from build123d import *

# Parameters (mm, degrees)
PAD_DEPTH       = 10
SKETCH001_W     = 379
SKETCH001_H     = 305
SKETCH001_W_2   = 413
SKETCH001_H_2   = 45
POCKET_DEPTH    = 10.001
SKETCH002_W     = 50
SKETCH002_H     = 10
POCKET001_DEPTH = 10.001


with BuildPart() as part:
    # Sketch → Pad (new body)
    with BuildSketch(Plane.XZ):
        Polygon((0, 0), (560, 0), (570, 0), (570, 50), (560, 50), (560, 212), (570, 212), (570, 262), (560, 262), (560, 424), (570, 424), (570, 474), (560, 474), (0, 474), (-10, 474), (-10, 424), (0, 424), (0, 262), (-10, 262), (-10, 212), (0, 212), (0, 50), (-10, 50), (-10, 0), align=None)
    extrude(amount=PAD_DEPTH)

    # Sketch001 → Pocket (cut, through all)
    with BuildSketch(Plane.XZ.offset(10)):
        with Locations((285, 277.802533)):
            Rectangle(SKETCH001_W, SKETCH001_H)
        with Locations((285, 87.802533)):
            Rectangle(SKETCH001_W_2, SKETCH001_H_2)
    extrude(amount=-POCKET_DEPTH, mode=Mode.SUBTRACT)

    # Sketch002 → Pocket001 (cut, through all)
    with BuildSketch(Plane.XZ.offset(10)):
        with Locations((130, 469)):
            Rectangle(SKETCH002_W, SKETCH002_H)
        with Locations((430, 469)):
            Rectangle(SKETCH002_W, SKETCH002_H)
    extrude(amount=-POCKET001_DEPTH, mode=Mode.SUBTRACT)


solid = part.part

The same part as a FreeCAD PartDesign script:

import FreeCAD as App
import Part
import Sketcher

V = App.Vector

doc = App.newDocument("Part")
body = doc.addObject("PartDesign::Body", "Body")

sketch1 = body.newObject("Sketcher::SketchObject", "Sketch")
sketch1.AttachmentSupport = (doc.getObject("XZ_Plane"), [""])
sketch1.MapMode = "FlatFace"
sketch1.addGeometry(Part.LineSegment(V(570, 0, 0), V(570, 50, 0)), False)
sketch1.addGeometry(Part.LineSegment(V(570, 50, 0), V(560, 50, 0)), False)
sketch1.addGeometry(Part.LineSegment(V(560, 50, 0), V(560, 212, 0)), False)
sketch1.addGeometry(Part.LineSegment(V(560, 212, 0), V(570, 212, 0)), False)
sketch1.addGeometry(Part.LineSegment(V(570, 212, 0), V(570, 262, 0)), False)
sketch1.addGeometry(Part.LineSegment(V(570, 262, 0), V(560, 262, 0)), False)
sketch1.addGeometry(Part.LineSegment(V(560, 262, 0), V(560, 424, 0)), False)
sketch1.addGeometry(Part.LineSegment(V(560, 424, 0), V(570, 424, 0)), False)
sketch1.addGeometry(Part.LineSegment(V(570, 424, 0), V(570, 474, 0)), False)
sketch1.addGeometry(Part.LineSegment(V(570, 474, 0), V(-10, 474, 0)), False)
sketch1.addGeometry(Part.LineSegment(V(-10, 474, 0), V(-10, 424, 0)), False)
sketch1.addGeometry(Part.LineSegment(V(-10, 424, 0), V(0, 424, 0)), False)
sketch1.addGeometry(Part.LineSegment(V(0, 424, 0), V(0, 262, 0)), False)
sketch1.addGeometry(Part.LineSegment(V(0, 262, 0), V(-10, 262, 0)), False)
sketch1.addGeometry(Part.LineSegment(V(-10, 262, 0), V(-10, 212, 0)), False)
sketch1.addGeometry(Part.LineSegment(V(-10, 212, 0), V(0, 212, 0)), False)
sketch1.addGeometry(Part.LineSegment(V(0, 212, 0), V(0, 50, 0)), False)
sketch1.addGeometry(Part.LineSegment(V(0, 50, 0), V(-10, 50, 0)), False)
sketch1.addGeometry(Part.LineSegment(V(-10, 50, 0), V(-10, 0, 0)), False)
sketch1.addGeometry(Part.LineSegment(V(-10, 0, 0), V(570, 0, 0)), False)
sketch1.addConstraint(Sketcher.Constraint("Coincident", 0, 2, 1, 1))
sketch1.addConstraint(Sketcher.Constraint("Coincident", 1, 2, 2, 1))
sketch1.addConstraint(Sketcher.Constraint("Coincident", 2, 2, 3, 1))
sketch1.addConstraint(Sketcher.Constraint("Coincident", 3, 2, 4, 1))
sketch1.addConstraint(Sketcher.Constraint("Coincident", 4, 2, 5, 1))
sketch1.addConstraint(Sketcher.Constraint("Coincident", 5, 2, 6, 1))
sketch1.addConstraint(Sketcher.Constraint("Coincident", 6, 2, 7, 1))
sketch1.addConstraint(Sketcher.Constraint("Coincident", 7, 2, 8, 1))
sketch1.addConstraint(Sketcher.Constraint("Coincident", 8, 2, 9, 1))
sketch1.addConstraint(Sketcher.Constraint("Coincident", 9, 2, 10, 1))
sketch1.addConstraint(Sketcher.Constraint("Coincident", 10, 2, 11, 1))
sketch1.addConstraint(Sketcher.Constraint("Coincident", 11, 2, 12, 1))
sketch1.addConstraint(Sketcher.Constraint("Coincident", 12, 2, 13, 1))
sketch1.addConstraint(Sketcher.Constraint("Coincident", 13, 2, 14, 1))
sketch1.addConstraint(Sketcher.Constraint("Coincident", 14, 2, 15, 1))
sketch1.addConstraint(Sketcher.Constraint("Coincident", 15, 2, 16, 1))
sketch1.addConstraint(Sketcher.Constraint("Coincident", 16, 2, 17, 1))
sketch1.addConstraint(Sketcher.Constraint("Coincident", 17, 2, 18, 1))
sketch1.addConstraint(Sketcher.Constraint("Coincident", 18, 2, 19, 1))
sketch1.addConstraint(Sketcher.Constraint("Coincident", 19, 2, 0, 1))
sketch1.addConstraint(Sketcher.Constraint("Vertical", 0))
sketch1.addConstraint(Sketcher.Constraint("Horizontal", 1))
sketch1.addConstraint(Sketcher.Constraint("Vertical", 2))
sketch1.addConstraint(Sketcher.Constraint("Horizontal", 3))
sketch1.addConstraint(Sketcher.Constraint("Vertical", 4))
sketch1.addConstraint(Sketcher.Constraint("Horizontal", 5))
sketch1.addConstraint(Sketcher.Constraint("Vertical", 6))
sketch1.addConstraint(Sketcher.Constraint("Horizontal", 7))
sketch1.addConstraint(Sketcher.Constraint("Vertical", 8))
sketch1.addConstraint(Sketcher.Constraint("Horizontal", 9))
sketch1.addConstraint(Sketcher.Constraint("Vertical", 10))
sketch1.addConstraint(Sketcher.Constraint("Horizontal", 11))
sketch1.addConstraint(Sketcher.Constraint("Vertical", 12))
sketch1.addConstraint(Sketcher.Constraint("Horizontal", 13))
sketch1.addConstraint(Sketcher.Constraint("Vertical", 14))
sketch1.addConstraint(Sketcher.Constraint("Horizontal", 15))
sketch1.addConstraint(Sketcher.Constraint("Vertical", 16))
sketch1.addConstraint(Sketcher.Constraint("Horizontal", 17))
sketch1.addConstraint(Sketcher.Constraint("Vertical", 18))
sketch1.addConstraint(Sketcher.Constraint("Horizontal", 19))
sketch1.addConstraint(Sketcher.Constraint("PointOnObject", 11, 2, -2))
sketch1.addConstraint(Sketcher.Constraint("PointOnObject", 15, 2, -2))
sketch1.addConstraint(Sketcher.Constraint("PointOnObject", 18, 2, -1))
sketch1.addConstraint(Sketcher.Constraint("Horizontal", 7, 2, 10, 2))
sketch1.addConstraint(Sketcher.Constraint("Horizontal", 5, 2, 12, 2))
sketch1.addConstraint(Sketcher.Constraint("Horizontal", 3, 2, 14, 2))
sketch1.addConstraint(Sketcher.Constraint("Horizontal", 1, 2, 16, 2))
sketch1.addConstraint(Sketcher.Constraint("Vertical", 0, 2, 3, 2))
sketch1.addConstraint(Sketcher.Constraint("Vertical", 2, 2, 5, 2))
sketch1.addConstraint(Sketcher.Constraint("Vertical", 4, 2, 7, 2))
sketch1.addConstraint(Sketcher.Constraint("Vertical", 10, 2, 13, 2))
sketch1.addConstraint(Sketcher.Constraint("Vertical", 14, 2, 17, 2))
sketch1.addConstraint(Sketcher.Constraint("Equal", 7, 11))
sketch1.addConstraint(Sketcher.Constraint("Equal", 0, 4))
sketch1.addConstraint(Sketcher.Constraint("Equal", 2, 6))
sketch1.addConstraint(Sketcher.Constraint("Equal", 4, 8))
sketch1.addConstraint(Sketcher.Constraint("DistanceX", 1, 2, 1, 1, 10.0))
sketch1.addConstraint(Sketcher.Constraint("DistanceX", 9, 2, 9, 1, 580.0))
sketch1.addConstraint(Sketcher.Constraint("DistanceY", 0, 1, 0, 2, 50.0))
sketch1.addConstraint(Sketcher.Constraint("DistanceY", 2, 1, 2, 2, 162.0))
pad1 = body.newObject("PartDesign::Pad", "Pad")
pad1.Profile = sketch1
pad1.Length = 10

sketch2 = body.newObject("Sketcher::SketchObject", "Sketch001")
sketch2.AttachmentSupport = (doc.getObject("XZ_Plane"), [""])
sketch2.MapMode = "FlatFace"
sketch2.AttachmentOffset = App.Placement(V(0, 0, 10), App.Rotation())
sketch2.addGeometry(Part.LineSegment(V(96, 430, 0), V(96, 125, 0)), False)
sketch2.addGeometry(Part.LineSegment(V(96, 125, 0), V(474, 125, 0)), False)
sketch2.addGeometry(Part.LineSegment(V(474, 125, 0), V(474, 430, 0)), False)
sketch2.addGeometry(Part.LineSegment(V(474, 430, 0), V(96, 430, 0)), False)
sketch2.addGeometry(Part.LineSegment(V(78, 110, 0), V(78, 65, 0)), False)
sketch2.addGeometry(Part.LineSegment(V(78, 65, 0), V(492, 65, 0)), False)
sketch2.addGeometry(Part.LineSegment(V(492, 65, 0), V(492, 110, 0)), False)
sketch2.addGeometry(Part.LineSegment(V(492, 110, 0), V(78, 110, 0)), False)
sketch2.addConstraint(Sketcher.Constraint("Coincident", 0, 2, 1, 1))
sketch2.addConstraint(Sketcher.Constraint("Coincident", 1, 2, 2, 1))
sketch2.addConstraint(Sketcher.Constraint("Coincident", 2, 2, 3, 1))
sketch2.addConstraint(Sketcher.Constraint("Coincident", 3, 2, 0, 1))
sketch2.addConstraint(Sketcher.Constraint("Coincident", 4, 2, 5, 1))
sketch2.addConstraint(Sketcher.Constraint("Coincident", 5, 2, 6, 1))
sketch2.addConstraint(Sketcher.Constraint("Coincident", 6, 2, 7, 1))
sketch2.addConstraint(Sketcher.Constraint("Coincident", 7, 2, 4, 1))
sketch2.addConstraint(Sketcher.Constraint("Vertical", 0))
sketch2.addConstraint(Sketcher.Constraint("Horizontal", 1))
sketch2.addConstraint(Sketcher.Constraint("Vertical", 2))
sketch2.addConstraint(Sketcher.Constraint("Horizontal", 3))
sketch2.addConstraint(Sketcher.Constraint("Vertical", 4))
sketch2.addConstraint(Sketcher.Constraint("Horizontal", 5))
sketch2.addConstraint(Sketcher.Constraint("Vertical", 6))
sketch2.addConstraint(Sketcher.Constraint("Horizontal", 7))
sketch2.addConstraint(Sketcher.Constraint("DistanceX", 1, 1, 1, 2, 379.0))
sketch2.addConstraint(Sketcher.Constraint("DistanceX", 5, 1, 5, 2, 413.0))
sketch2.addConstraint(Sketcher.Constraint("DistanceY", 0, 2, 0, 1, 305.0))
sketch2.addConstraint(Sketcher.Constraint("DistanceY", 4, 2, 4, 1, 45.0))
sketch2.addConstraint(Sketcher.Constraint("DistanceX", 4, 2, 0, 2, 17.0))
sketch2.addConstraint(Sketcher.Constraint("DistanceY", 4, 2, 0, 2, 60.0))
sketch2.addConstraint(Sketcher.Constraint("DistanceX", -1, 1, 0, 2, 95.5))
sketch2.addConstraint(Sketcher.Constraint("DistanceY", -1, 1, 0, 2, 125.302533))
pocket1 = body.newObject("PartDesign::Pocket", "Pocket")
pocket1.Profile = sketch2
pocket1.Type = "ThroughAll"

sketch3 = body.newObject("Sketcher::SketchObject", "Sketch002")
sketch3.AttachmentSupport = (doc.getObject("XZ_Plane"), [""])
sketch3.MapMode = "FlatFace"
sketch3.AttachmentOffset = App.Placement(V(0, 0, 10), App.Rotation())
sketch3.addGeometry(Part.LineSegment(V(105, 474, 0), V(105, 464, 0)), False)
sketch3.addGeometry(Part.LineSegment(V(105, 464, 0), V(155, 464, 0)), False)
sketch3.addGeometry(Part.LineSegment(V(155, 464, 0), V(155, 474, 0)), False)
sketch3.addGeometry(Part.LineSegment(V(155, 474, 0), V(105, 474, 0)), False)
sketch3.addGeometry(Part.LineSegment(V(405, 474, 0), V(405, 464, 0)), False)
sketch3.addGeometry(Part.LineSegment(V(405, 464, 0), V(455, 464, 0)), False)
sketch3.addGeometry(Part.LineSegment(V(455, 464, 0), V(455, 474, 0)), False)
sketch3.addGeometry(Part.LineSegment(V(455, 474, 0), V(405, 474, 0)), False)
sketch3.addConstraint(Sketcher.Constraint("Coincident", 0, 2, 1, 1))
sketch3.addConstraint(Sketcher.Constraint("Coincident", 1, 2, 2, 1))
sketch3.addConstraint(Sketcher.Constraint("Coincident", 2, 2, 3, 1))
sketch3.addConstraint(Sketcher.Constraint("Coincident", 3, 2, 0, 1))
sketch3.addConstraint(Sketcher.Constraint("Coincident", 4, 2, 5, 1))
sketch3.addConstraint(Sketcher.Constraint("Coincident", 5, 2, 6, 1))
sketch3.addConstraint(Sketcher.Constraint("Coincident", 6, 2, 7, 1))
sketch3.addConstraint(Sketcher.Constraint("Coincident", 7, 2, 4, 1))
sketch3.addConstraint(Sketcher.Constraint("Vertical", 0))
sketch3.addConstraint(Sketcher.Constraint("Horizontal", 1))
sketch3.addConstraint(Sketcher.Constraint("Vertical", 2))
sketch3.addConstraint(Sketcher.Constraint("Horizontal", 3))
sketch3.addConstraint(Sketcher.Constraint("Vertical", 4))
sketch3.addConstraint(Sketcher.Constraint("Horizontal", 5))
sketch3.addConstraint(Sketcher.Constraint("Vertical", 6))
sketch3.addConstraint(Sketcher.Constraint("Horizontal", 7))
sketch3.addConstraint(Sketcher.Constraint("Horizontal", 1, 2, 4, 2))
sketch3.addConstraint(Sketcher.Constraint("Horizontal", 3, 2, 6, 2))
sketch3.addConstraint(Sketcher.Constraint("Equal", 3, 5))
sketch3.addConstraint(Sketcher.Constraint("DistanceX", 1, 1, 1, 2, 50.0))
sketch3.addConstraint(Sketcher.Constraint("DistanceY", 0, 2, 0, 1, 10.0))
sketch3.addConstraint(Sketcher.Constraint("DistanceX", -1, 1, 0, 2, 105.0))
sketch3.addConstraint(Sketcher.Constraint("DistanceY", -1, 1, 0, 2, 464.0))
sketch3.addConstraint(Sketcher.Constraint("DistanceX", -1, 1, 4, 2, 405.0))
pocket2 = body.newObject("PartDesign::Pocket", "Pocket001")
pocket2.Profile = sketch3
pocket2.Type = "ThroughAll"

doc.recompute()
